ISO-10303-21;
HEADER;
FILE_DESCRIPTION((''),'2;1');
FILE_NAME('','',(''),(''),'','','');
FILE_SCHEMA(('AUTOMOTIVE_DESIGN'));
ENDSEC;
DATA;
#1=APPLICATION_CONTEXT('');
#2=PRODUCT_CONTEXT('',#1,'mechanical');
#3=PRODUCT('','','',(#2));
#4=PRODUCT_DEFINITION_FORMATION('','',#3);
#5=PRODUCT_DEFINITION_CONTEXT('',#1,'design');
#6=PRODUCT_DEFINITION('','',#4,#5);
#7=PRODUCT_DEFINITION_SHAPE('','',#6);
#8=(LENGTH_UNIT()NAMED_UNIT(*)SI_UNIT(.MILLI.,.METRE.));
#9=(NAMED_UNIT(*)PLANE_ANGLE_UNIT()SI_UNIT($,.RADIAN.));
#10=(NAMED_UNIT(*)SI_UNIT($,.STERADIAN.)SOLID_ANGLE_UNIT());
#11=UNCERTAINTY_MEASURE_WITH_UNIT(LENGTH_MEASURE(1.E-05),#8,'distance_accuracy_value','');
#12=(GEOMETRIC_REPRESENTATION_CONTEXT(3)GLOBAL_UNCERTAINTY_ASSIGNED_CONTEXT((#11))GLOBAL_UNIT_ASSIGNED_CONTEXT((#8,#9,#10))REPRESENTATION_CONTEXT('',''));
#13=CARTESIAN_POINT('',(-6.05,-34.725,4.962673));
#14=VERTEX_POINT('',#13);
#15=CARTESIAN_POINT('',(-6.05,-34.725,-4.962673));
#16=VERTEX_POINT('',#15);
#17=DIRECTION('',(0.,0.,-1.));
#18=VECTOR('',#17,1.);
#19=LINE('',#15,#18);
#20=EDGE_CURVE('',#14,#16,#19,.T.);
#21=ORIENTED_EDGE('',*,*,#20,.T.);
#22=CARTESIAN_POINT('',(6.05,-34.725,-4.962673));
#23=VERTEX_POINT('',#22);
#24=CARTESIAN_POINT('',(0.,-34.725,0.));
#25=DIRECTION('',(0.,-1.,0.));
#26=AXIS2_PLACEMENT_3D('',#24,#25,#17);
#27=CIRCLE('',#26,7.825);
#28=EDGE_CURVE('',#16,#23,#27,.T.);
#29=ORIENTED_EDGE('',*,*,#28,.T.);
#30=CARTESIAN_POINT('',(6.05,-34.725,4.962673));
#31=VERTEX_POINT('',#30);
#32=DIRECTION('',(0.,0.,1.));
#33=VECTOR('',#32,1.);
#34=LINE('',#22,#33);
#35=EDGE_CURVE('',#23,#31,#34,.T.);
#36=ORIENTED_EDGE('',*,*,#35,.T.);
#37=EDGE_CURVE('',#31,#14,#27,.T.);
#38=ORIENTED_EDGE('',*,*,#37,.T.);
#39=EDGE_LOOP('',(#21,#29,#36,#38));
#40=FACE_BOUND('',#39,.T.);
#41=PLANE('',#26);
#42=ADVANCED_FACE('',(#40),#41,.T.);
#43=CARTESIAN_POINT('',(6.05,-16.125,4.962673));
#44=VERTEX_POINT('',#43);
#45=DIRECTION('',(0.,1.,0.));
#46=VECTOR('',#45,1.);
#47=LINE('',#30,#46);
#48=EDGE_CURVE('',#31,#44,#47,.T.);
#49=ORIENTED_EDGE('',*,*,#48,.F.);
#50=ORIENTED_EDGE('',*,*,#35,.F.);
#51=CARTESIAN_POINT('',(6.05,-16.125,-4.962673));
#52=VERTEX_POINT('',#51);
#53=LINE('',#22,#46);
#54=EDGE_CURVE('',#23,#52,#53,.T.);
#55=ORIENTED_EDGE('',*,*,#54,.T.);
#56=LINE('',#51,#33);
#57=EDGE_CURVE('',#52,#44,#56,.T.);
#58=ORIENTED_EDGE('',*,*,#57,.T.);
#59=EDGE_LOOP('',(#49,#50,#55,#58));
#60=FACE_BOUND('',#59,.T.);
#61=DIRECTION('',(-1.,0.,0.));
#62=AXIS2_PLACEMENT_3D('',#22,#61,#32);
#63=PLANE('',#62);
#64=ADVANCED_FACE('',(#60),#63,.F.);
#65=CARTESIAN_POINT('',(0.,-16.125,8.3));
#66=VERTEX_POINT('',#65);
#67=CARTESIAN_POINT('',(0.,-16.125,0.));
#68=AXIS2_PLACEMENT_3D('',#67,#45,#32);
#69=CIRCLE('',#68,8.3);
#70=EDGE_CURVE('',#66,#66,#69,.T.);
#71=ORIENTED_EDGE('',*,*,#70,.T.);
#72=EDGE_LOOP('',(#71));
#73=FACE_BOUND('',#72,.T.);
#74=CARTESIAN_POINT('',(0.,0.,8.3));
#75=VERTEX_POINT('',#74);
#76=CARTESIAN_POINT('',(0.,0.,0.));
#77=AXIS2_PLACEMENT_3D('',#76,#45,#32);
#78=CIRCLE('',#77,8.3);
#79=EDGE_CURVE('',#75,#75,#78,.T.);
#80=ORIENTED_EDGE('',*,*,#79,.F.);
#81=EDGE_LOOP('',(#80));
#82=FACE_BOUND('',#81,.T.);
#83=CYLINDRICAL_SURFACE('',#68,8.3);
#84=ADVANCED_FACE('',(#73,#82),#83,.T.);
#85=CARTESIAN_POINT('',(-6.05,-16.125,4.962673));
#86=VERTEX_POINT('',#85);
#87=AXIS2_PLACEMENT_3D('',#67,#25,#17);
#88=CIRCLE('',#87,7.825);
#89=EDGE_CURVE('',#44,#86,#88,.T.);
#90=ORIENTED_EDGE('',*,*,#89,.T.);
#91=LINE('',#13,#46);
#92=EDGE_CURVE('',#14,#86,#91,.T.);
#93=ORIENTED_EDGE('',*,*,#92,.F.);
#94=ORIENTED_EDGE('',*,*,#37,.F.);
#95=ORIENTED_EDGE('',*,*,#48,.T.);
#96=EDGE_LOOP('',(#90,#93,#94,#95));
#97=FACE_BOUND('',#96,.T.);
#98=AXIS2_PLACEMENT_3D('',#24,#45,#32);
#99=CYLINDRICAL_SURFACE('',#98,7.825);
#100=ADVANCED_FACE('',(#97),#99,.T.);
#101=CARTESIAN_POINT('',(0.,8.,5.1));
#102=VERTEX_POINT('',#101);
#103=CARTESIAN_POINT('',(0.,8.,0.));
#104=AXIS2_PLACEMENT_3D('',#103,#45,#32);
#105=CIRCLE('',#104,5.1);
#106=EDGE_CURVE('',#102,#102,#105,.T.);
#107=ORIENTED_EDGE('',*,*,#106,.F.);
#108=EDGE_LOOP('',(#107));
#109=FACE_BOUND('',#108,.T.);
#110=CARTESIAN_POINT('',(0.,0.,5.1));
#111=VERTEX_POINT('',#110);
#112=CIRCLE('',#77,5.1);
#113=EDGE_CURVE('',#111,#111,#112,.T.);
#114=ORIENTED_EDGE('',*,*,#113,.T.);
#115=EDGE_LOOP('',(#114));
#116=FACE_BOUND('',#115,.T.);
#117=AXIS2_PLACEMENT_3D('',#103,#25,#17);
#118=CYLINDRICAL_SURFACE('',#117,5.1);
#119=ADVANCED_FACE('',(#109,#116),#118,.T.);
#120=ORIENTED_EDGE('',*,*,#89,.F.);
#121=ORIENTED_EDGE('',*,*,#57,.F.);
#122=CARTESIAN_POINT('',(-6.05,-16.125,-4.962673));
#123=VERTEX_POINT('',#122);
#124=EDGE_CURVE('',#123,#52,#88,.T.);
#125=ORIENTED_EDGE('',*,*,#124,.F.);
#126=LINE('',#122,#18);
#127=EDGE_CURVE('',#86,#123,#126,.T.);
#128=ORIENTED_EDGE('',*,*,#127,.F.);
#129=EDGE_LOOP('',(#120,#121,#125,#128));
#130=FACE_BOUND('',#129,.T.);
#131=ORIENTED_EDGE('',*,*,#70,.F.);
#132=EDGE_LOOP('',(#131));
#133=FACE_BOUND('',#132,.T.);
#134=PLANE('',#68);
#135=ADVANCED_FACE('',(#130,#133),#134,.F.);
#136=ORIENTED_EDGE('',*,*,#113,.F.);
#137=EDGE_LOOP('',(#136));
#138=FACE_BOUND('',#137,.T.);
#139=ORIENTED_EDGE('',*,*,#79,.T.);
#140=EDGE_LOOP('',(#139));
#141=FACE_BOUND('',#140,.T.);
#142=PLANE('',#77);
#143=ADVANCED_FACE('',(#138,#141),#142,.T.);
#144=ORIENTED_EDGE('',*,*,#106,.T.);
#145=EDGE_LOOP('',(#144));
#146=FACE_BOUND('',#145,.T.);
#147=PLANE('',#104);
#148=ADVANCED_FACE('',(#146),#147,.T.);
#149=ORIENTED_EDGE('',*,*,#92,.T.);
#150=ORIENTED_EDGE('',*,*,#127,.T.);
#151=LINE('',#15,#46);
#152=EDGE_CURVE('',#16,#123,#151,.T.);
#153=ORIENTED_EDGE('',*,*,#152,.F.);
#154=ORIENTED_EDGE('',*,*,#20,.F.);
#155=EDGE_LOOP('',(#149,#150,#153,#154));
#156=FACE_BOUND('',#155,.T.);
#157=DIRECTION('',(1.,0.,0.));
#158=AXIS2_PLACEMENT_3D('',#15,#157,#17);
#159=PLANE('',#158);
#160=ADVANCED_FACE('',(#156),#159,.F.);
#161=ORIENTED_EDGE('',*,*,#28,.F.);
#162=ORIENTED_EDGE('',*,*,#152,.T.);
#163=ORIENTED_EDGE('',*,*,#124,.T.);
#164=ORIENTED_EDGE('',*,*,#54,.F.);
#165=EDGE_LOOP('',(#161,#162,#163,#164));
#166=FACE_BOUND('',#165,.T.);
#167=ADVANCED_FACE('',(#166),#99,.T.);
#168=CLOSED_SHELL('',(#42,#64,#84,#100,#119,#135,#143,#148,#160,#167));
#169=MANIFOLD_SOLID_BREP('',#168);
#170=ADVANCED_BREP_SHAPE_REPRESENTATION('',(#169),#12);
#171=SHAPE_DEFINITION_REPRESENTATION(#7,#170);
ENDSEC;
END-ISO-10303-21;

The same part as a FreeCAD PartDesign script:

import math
import FreeCAD as App
import Part
import Sketcher

V = App.Vector
Q = App.Units.Quantity

doc = App.newDocument("Part")
body = doc.addObject("PartDesign::Body", "Body")

# Sketch on XZ plane
sketch1 = doc.addObject("Sketcher::SketchObject", "Sketch")
body.addObject(sketch1)
sketch1.AttachmentSupport = (doc.XZ_Plane, [""])
sketch1.MapMode = "FlatFace"
sketch1.addGeometry(Part.Circle(V(0, 0, 0), V(0, 0, 1), 8), False)
sketch1.addConstraint([
    Sketcher.Constraint("Coincident", 0, 3, -1, 1),
    Sketcher.Constraint("Diameter", 0, Q("16.6 mm")),
])
pad1 = doc.addObject("PartDesign::Pad", "Pad")
body.addObject(pad1)
pad1.Profile = sketch1
pad1.Length = 16.125

# Sketch on XZ plane
sketch2 = doc.addObject("Sketcher::SketchObject", "Sketch001")
body.addObject(sketch2)
sketch2.AttachmentSupport = (doc.XZ_Plane, [""])
sketch2.MapMode = "FlatFace"
sketch2.addGeometry(Part.Circle(V(0, 0, 0), V(0, 0, 1), 5), False)
sketch2.addConstraint([
    Sketcher.Constraint("Coincident", 0, 3, -1, 1),
    Sketcher.Constraint("Diameter", 0, Q("10.2 mm")),
])
pad2 = doc.addObject("PartDesign::Pad", "Pad001")
body.addObject(pad2)
pad2.Profile = sketch2
pad2.Length = 8
pad2.Reversed = True

# Sketch on XZ plane
sketch3 = doc.addObject("Sketcher::SketchObject", "Sketch002")
body.addObject(sketch3)
sketch3.AttachmentSupport = (doc.XZ_Plane, [""])
sketch3.MapMode = "FlatFace"
sketch3.AttachmentOffset = App.Placement(V(0, 0, 16.125), App.Rotation())
sketch3.addGeometry([
    Part.LineSegment(V(-6, 5, 0), V(-6, -5, 0)),
    Part.ArcOfCircle(Part.Circle(V(0, 0, 0), V(0, 0, 1), 8), math.radians(-141), math.radians(-39)),
    Part.LineSegment(V(6, -5, 0), V(6, 5, 0)),
    Part.ArcOfCircle(Part.Circle(V(0, 0, 0), V(0, 0, 1), 8), math.radians(39), math.radians(141)),
], False)
sketch3.addConstraint([
    Sketcher.Constraint("Coincident", 0, 2, 1, 1),
    Sketcher.Constraint("Coincident", 1, 2, 2, 1),
    Sketcher.Constraint("Coincident", 2, 2, 3, 1),
    Sketcher.Constraint("Coincident", 3, 2, 0, 1),
    Sketcher.Constraint("Vertical", 0),
    Sketcher.Constraint("Vertical", 2),
    Sketcher.Constraint("Coincident", 1, 3, -1, 1),
    Sketcher.Constraint("Coincident", 3, 3, -1, 1),
    Sketcher.Constraint("Equal", 1, 3),
    Sketcher.Constraint("Horizontal", 0, 2, 1, 2),
    Sketcher.Constraint("Radius", 1, Q("7.825 mm")),
    Sketcher.Constraint("DistanceX", 0, 2, 1, 2, Q("12.1 mm")),
])
pad3 = doc.addObject("PartDesign::Pad", "Pad002")
body.addObject(pad3)
pad3.Profile = sketch3
pad3.Length = 18.6

doc.recompute()
